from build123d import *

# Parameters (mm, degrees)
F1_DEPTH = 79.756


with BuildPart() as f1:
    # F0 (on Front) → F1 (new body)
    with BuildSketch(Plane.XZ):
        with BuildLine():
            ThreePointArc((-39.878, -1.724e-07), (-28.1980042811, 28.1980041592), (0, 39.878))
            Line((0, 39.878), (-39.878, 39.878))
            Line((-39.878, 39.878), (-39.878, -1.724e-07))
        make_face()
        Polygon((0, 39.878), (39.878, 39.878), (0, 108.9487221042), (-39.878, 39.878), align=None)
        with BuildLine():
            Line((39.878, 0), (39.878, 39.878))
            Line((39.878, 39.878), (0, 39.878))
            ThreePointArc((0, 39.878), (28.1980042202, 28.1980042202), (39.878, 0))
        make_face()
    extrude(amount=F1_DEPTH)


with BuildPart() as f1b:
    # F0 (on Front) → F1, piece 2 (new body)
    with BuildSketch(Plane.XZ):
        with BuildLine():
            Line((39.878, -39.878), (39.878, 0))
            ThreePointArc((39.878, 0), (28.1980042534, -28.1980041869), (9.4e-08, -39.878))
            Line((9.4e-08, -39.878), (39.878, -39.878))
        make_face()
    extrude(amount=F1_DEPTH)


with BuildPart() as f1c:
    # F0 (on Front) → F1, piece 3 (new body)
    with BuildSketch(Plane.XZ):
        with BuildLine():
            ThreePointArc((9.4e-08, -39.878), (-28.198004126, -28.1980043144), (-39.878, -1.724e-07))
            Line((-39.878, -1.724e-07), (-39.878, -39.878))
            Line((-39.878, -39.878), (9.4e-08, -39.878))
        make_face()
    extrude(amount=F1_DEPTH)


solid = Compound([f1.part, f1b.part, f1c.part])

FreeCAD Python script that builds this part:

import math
import FreeCAD as App
import Part
import Sketcher
Q = App.Units.Quantity

doc = App.newDocument("Part")
body = doc.addObject("PartDesign::Body", "Body")

sketch1 = doc.addObject("Sketcher::SketchObject", "Sketch")
body.addObject(sketch1)
sketch1.AttachmentSupport = (doc.XZ_Plane, [""])
sketch1.MapMode = "FlatFace"
sketch1.addGeometry([
    Part.ArcOfCircle(Part.Circle(App.Vector(0, 0, 0), App.Vector(0, 0, 1), 40), math.radians(90), math.radians(180)),
    Part.ArcOfCircle(Part.Circle(App.Vector(0, 0, 0), App.Vector(0, 0, 1), 40), math.radians(0), math.radians(90)),
    Part.LineSegment(App.Vector(40, 0, 0), App.Vector(40, 40, 0)),
    Part.LineSegment(App.Vector(40, 40, 0), App.Vector(0, 109, 0)),
    Part.LineSegment(App.Vector(0, 109, 0), App.Vector(-40, 40, 0)),
    Part.LineSegment(App.Vector(-40, 40, 0), App.Vector(-40, 0, 0)),
], False)
sketch1.addConstraint([
    Sketcher.Constraint("Tangent", 0, 1, 1, 2),
    Sketcher.Constraint("Tangent", 1, 1, 2, 1),
    Sketcher.Constraint("Coincident", 2, 2, 3, 1),
    Sketcher.Constraint("Coincident", 3, 2, 4, 1),
    Sketcher.Constraint("Coincident", 4, 2, 5, 1),
    Sketcher.Constraint("Tangent", 5, 2, 0, 2),
    Sketcher.Constraint("Vertical", 2),
    Sketcher.Constraint("Vertical", 5),
    Sketcher.Constraint("Coincident", 0, 3, -1, 1),
    Sketcher.Constraint("Equal", 0, 1),
    Sketcher.Constraint("PointOnObject", 0, 1, -2),
    Sketcher.Constraint("PointOnObject", 3, 2, -2),
    Sketcher.Constraint("Horizontal", 0, 1, 2, 2),
    Sketcher.Constraint("Horizontal", 2, 2, 4, 2),
    Sketcher.Constraint("Radius", 0, Q("1.57 in")),
    Sketcher.Constraint("Angle", 3, Q("120 deg")),
])
pad1 = doc.addObject("PartDesign::Pad", "Pad")
body.addObject(pad1)
pad1.Profile = sketch1
pad1.Length = Q("3.14 in")
body2 = doc.addObject("PartDesign::Body", "Body001")

sketch2 = doc.addObject("Sketcher::SketchObject", "Sketch001")
body2.addObject(sketch2)
sketch2.AttachmentSupport = (doc.getObject("XZ_Plane001"), [""])
sketch2.MapMode = "FlatFace"
sketch2.addGeometry([
    Part.LineSegment(App.Vector(40, -40, 0), App.Vector(40, 0, 0)),
    Part.ArcOfCircle(Part.Circle(App.Vector(0, 0, 0), App.Vector(0, 0, 1), 40), math.radians(-90), math.radians(0)),
    Part.LineSegment(App.Vector(0, -40, 0), App.Vector(40, -40, 0)),
], False)
sketch2.addConstraint([
    Sketcher.Constraint("Tangent", 0, 2, 1, 2),
    Sketcher.Constraint("Tangent", 1, 1, 2, 1),
    Sketcher.Constraint("Coincident", 2, 2, 0, 1),
    Sketcher.Constraint("Vertical", 0),
    Sketcher.Constraint("Horizontal", 2),
    Sketcher.Constraint("Coincident", 1, 3, -1, 1),
    Sketcher.Constraint("Radius", 1, Q("1.57 in")),
])
pad2 = doc.addObject("PartDesign::Pad", "Pad001")
body2.addObject(pad2)
pad2.Profile = sketch2
pad2.Length = Q("3.14 in")
body3 = doc.addObject("PartDesign::Body", "Body002")

sketch3 = doc.addObject("Sketcher::SketchObject", "Sketch002")
body3.addObject(sketch3)
sketch3.AttachmentSupport = (doc.getObject("XZ_Plane002"), [""])
sketch3.MapMode = "FlatFace"
sketch3.addGeometry([
    Part.ArcOfCircle(Part.Circle(App.Vector(0, 0, 0), App.Vector(0, 0, 1), 40), math.radians(-180), math.radians(-90)),
    Part.LineSegment(App.Vector(-40, 0, 0), App.Vector(-40, -40, 0)),
    Part.LineSegment(App.Vector(-40, -40, 0), App.Vector(0, -40, 0)),
], False)
sketch3.addConstraint([
    Sketcher.Constraint("Tangent", 0, 1, 1, 1),
    Sketcher.Constraint("Coincident", 1, 2, 2, 1),
    Sketcher.Constraint("Tangent", 2, 2, 0, 2),
    Sketcher.Constraint("Vertical", 1),
    Sketcher.Constraint("Horizontal", 2),
    Sketcher.Constraint("Coincident", 0, 3, -1, 1),
    Sketcher.Constraint("Radius", 0, Q("1.57 in")),
])
pad3 = doc.addObject("PartDesign::Pad", "Pad002")
body3.addObject(pad3)
pad3.Profile = sketch3
pad3.Length = Q("3.14 in")

doc.recompute()
